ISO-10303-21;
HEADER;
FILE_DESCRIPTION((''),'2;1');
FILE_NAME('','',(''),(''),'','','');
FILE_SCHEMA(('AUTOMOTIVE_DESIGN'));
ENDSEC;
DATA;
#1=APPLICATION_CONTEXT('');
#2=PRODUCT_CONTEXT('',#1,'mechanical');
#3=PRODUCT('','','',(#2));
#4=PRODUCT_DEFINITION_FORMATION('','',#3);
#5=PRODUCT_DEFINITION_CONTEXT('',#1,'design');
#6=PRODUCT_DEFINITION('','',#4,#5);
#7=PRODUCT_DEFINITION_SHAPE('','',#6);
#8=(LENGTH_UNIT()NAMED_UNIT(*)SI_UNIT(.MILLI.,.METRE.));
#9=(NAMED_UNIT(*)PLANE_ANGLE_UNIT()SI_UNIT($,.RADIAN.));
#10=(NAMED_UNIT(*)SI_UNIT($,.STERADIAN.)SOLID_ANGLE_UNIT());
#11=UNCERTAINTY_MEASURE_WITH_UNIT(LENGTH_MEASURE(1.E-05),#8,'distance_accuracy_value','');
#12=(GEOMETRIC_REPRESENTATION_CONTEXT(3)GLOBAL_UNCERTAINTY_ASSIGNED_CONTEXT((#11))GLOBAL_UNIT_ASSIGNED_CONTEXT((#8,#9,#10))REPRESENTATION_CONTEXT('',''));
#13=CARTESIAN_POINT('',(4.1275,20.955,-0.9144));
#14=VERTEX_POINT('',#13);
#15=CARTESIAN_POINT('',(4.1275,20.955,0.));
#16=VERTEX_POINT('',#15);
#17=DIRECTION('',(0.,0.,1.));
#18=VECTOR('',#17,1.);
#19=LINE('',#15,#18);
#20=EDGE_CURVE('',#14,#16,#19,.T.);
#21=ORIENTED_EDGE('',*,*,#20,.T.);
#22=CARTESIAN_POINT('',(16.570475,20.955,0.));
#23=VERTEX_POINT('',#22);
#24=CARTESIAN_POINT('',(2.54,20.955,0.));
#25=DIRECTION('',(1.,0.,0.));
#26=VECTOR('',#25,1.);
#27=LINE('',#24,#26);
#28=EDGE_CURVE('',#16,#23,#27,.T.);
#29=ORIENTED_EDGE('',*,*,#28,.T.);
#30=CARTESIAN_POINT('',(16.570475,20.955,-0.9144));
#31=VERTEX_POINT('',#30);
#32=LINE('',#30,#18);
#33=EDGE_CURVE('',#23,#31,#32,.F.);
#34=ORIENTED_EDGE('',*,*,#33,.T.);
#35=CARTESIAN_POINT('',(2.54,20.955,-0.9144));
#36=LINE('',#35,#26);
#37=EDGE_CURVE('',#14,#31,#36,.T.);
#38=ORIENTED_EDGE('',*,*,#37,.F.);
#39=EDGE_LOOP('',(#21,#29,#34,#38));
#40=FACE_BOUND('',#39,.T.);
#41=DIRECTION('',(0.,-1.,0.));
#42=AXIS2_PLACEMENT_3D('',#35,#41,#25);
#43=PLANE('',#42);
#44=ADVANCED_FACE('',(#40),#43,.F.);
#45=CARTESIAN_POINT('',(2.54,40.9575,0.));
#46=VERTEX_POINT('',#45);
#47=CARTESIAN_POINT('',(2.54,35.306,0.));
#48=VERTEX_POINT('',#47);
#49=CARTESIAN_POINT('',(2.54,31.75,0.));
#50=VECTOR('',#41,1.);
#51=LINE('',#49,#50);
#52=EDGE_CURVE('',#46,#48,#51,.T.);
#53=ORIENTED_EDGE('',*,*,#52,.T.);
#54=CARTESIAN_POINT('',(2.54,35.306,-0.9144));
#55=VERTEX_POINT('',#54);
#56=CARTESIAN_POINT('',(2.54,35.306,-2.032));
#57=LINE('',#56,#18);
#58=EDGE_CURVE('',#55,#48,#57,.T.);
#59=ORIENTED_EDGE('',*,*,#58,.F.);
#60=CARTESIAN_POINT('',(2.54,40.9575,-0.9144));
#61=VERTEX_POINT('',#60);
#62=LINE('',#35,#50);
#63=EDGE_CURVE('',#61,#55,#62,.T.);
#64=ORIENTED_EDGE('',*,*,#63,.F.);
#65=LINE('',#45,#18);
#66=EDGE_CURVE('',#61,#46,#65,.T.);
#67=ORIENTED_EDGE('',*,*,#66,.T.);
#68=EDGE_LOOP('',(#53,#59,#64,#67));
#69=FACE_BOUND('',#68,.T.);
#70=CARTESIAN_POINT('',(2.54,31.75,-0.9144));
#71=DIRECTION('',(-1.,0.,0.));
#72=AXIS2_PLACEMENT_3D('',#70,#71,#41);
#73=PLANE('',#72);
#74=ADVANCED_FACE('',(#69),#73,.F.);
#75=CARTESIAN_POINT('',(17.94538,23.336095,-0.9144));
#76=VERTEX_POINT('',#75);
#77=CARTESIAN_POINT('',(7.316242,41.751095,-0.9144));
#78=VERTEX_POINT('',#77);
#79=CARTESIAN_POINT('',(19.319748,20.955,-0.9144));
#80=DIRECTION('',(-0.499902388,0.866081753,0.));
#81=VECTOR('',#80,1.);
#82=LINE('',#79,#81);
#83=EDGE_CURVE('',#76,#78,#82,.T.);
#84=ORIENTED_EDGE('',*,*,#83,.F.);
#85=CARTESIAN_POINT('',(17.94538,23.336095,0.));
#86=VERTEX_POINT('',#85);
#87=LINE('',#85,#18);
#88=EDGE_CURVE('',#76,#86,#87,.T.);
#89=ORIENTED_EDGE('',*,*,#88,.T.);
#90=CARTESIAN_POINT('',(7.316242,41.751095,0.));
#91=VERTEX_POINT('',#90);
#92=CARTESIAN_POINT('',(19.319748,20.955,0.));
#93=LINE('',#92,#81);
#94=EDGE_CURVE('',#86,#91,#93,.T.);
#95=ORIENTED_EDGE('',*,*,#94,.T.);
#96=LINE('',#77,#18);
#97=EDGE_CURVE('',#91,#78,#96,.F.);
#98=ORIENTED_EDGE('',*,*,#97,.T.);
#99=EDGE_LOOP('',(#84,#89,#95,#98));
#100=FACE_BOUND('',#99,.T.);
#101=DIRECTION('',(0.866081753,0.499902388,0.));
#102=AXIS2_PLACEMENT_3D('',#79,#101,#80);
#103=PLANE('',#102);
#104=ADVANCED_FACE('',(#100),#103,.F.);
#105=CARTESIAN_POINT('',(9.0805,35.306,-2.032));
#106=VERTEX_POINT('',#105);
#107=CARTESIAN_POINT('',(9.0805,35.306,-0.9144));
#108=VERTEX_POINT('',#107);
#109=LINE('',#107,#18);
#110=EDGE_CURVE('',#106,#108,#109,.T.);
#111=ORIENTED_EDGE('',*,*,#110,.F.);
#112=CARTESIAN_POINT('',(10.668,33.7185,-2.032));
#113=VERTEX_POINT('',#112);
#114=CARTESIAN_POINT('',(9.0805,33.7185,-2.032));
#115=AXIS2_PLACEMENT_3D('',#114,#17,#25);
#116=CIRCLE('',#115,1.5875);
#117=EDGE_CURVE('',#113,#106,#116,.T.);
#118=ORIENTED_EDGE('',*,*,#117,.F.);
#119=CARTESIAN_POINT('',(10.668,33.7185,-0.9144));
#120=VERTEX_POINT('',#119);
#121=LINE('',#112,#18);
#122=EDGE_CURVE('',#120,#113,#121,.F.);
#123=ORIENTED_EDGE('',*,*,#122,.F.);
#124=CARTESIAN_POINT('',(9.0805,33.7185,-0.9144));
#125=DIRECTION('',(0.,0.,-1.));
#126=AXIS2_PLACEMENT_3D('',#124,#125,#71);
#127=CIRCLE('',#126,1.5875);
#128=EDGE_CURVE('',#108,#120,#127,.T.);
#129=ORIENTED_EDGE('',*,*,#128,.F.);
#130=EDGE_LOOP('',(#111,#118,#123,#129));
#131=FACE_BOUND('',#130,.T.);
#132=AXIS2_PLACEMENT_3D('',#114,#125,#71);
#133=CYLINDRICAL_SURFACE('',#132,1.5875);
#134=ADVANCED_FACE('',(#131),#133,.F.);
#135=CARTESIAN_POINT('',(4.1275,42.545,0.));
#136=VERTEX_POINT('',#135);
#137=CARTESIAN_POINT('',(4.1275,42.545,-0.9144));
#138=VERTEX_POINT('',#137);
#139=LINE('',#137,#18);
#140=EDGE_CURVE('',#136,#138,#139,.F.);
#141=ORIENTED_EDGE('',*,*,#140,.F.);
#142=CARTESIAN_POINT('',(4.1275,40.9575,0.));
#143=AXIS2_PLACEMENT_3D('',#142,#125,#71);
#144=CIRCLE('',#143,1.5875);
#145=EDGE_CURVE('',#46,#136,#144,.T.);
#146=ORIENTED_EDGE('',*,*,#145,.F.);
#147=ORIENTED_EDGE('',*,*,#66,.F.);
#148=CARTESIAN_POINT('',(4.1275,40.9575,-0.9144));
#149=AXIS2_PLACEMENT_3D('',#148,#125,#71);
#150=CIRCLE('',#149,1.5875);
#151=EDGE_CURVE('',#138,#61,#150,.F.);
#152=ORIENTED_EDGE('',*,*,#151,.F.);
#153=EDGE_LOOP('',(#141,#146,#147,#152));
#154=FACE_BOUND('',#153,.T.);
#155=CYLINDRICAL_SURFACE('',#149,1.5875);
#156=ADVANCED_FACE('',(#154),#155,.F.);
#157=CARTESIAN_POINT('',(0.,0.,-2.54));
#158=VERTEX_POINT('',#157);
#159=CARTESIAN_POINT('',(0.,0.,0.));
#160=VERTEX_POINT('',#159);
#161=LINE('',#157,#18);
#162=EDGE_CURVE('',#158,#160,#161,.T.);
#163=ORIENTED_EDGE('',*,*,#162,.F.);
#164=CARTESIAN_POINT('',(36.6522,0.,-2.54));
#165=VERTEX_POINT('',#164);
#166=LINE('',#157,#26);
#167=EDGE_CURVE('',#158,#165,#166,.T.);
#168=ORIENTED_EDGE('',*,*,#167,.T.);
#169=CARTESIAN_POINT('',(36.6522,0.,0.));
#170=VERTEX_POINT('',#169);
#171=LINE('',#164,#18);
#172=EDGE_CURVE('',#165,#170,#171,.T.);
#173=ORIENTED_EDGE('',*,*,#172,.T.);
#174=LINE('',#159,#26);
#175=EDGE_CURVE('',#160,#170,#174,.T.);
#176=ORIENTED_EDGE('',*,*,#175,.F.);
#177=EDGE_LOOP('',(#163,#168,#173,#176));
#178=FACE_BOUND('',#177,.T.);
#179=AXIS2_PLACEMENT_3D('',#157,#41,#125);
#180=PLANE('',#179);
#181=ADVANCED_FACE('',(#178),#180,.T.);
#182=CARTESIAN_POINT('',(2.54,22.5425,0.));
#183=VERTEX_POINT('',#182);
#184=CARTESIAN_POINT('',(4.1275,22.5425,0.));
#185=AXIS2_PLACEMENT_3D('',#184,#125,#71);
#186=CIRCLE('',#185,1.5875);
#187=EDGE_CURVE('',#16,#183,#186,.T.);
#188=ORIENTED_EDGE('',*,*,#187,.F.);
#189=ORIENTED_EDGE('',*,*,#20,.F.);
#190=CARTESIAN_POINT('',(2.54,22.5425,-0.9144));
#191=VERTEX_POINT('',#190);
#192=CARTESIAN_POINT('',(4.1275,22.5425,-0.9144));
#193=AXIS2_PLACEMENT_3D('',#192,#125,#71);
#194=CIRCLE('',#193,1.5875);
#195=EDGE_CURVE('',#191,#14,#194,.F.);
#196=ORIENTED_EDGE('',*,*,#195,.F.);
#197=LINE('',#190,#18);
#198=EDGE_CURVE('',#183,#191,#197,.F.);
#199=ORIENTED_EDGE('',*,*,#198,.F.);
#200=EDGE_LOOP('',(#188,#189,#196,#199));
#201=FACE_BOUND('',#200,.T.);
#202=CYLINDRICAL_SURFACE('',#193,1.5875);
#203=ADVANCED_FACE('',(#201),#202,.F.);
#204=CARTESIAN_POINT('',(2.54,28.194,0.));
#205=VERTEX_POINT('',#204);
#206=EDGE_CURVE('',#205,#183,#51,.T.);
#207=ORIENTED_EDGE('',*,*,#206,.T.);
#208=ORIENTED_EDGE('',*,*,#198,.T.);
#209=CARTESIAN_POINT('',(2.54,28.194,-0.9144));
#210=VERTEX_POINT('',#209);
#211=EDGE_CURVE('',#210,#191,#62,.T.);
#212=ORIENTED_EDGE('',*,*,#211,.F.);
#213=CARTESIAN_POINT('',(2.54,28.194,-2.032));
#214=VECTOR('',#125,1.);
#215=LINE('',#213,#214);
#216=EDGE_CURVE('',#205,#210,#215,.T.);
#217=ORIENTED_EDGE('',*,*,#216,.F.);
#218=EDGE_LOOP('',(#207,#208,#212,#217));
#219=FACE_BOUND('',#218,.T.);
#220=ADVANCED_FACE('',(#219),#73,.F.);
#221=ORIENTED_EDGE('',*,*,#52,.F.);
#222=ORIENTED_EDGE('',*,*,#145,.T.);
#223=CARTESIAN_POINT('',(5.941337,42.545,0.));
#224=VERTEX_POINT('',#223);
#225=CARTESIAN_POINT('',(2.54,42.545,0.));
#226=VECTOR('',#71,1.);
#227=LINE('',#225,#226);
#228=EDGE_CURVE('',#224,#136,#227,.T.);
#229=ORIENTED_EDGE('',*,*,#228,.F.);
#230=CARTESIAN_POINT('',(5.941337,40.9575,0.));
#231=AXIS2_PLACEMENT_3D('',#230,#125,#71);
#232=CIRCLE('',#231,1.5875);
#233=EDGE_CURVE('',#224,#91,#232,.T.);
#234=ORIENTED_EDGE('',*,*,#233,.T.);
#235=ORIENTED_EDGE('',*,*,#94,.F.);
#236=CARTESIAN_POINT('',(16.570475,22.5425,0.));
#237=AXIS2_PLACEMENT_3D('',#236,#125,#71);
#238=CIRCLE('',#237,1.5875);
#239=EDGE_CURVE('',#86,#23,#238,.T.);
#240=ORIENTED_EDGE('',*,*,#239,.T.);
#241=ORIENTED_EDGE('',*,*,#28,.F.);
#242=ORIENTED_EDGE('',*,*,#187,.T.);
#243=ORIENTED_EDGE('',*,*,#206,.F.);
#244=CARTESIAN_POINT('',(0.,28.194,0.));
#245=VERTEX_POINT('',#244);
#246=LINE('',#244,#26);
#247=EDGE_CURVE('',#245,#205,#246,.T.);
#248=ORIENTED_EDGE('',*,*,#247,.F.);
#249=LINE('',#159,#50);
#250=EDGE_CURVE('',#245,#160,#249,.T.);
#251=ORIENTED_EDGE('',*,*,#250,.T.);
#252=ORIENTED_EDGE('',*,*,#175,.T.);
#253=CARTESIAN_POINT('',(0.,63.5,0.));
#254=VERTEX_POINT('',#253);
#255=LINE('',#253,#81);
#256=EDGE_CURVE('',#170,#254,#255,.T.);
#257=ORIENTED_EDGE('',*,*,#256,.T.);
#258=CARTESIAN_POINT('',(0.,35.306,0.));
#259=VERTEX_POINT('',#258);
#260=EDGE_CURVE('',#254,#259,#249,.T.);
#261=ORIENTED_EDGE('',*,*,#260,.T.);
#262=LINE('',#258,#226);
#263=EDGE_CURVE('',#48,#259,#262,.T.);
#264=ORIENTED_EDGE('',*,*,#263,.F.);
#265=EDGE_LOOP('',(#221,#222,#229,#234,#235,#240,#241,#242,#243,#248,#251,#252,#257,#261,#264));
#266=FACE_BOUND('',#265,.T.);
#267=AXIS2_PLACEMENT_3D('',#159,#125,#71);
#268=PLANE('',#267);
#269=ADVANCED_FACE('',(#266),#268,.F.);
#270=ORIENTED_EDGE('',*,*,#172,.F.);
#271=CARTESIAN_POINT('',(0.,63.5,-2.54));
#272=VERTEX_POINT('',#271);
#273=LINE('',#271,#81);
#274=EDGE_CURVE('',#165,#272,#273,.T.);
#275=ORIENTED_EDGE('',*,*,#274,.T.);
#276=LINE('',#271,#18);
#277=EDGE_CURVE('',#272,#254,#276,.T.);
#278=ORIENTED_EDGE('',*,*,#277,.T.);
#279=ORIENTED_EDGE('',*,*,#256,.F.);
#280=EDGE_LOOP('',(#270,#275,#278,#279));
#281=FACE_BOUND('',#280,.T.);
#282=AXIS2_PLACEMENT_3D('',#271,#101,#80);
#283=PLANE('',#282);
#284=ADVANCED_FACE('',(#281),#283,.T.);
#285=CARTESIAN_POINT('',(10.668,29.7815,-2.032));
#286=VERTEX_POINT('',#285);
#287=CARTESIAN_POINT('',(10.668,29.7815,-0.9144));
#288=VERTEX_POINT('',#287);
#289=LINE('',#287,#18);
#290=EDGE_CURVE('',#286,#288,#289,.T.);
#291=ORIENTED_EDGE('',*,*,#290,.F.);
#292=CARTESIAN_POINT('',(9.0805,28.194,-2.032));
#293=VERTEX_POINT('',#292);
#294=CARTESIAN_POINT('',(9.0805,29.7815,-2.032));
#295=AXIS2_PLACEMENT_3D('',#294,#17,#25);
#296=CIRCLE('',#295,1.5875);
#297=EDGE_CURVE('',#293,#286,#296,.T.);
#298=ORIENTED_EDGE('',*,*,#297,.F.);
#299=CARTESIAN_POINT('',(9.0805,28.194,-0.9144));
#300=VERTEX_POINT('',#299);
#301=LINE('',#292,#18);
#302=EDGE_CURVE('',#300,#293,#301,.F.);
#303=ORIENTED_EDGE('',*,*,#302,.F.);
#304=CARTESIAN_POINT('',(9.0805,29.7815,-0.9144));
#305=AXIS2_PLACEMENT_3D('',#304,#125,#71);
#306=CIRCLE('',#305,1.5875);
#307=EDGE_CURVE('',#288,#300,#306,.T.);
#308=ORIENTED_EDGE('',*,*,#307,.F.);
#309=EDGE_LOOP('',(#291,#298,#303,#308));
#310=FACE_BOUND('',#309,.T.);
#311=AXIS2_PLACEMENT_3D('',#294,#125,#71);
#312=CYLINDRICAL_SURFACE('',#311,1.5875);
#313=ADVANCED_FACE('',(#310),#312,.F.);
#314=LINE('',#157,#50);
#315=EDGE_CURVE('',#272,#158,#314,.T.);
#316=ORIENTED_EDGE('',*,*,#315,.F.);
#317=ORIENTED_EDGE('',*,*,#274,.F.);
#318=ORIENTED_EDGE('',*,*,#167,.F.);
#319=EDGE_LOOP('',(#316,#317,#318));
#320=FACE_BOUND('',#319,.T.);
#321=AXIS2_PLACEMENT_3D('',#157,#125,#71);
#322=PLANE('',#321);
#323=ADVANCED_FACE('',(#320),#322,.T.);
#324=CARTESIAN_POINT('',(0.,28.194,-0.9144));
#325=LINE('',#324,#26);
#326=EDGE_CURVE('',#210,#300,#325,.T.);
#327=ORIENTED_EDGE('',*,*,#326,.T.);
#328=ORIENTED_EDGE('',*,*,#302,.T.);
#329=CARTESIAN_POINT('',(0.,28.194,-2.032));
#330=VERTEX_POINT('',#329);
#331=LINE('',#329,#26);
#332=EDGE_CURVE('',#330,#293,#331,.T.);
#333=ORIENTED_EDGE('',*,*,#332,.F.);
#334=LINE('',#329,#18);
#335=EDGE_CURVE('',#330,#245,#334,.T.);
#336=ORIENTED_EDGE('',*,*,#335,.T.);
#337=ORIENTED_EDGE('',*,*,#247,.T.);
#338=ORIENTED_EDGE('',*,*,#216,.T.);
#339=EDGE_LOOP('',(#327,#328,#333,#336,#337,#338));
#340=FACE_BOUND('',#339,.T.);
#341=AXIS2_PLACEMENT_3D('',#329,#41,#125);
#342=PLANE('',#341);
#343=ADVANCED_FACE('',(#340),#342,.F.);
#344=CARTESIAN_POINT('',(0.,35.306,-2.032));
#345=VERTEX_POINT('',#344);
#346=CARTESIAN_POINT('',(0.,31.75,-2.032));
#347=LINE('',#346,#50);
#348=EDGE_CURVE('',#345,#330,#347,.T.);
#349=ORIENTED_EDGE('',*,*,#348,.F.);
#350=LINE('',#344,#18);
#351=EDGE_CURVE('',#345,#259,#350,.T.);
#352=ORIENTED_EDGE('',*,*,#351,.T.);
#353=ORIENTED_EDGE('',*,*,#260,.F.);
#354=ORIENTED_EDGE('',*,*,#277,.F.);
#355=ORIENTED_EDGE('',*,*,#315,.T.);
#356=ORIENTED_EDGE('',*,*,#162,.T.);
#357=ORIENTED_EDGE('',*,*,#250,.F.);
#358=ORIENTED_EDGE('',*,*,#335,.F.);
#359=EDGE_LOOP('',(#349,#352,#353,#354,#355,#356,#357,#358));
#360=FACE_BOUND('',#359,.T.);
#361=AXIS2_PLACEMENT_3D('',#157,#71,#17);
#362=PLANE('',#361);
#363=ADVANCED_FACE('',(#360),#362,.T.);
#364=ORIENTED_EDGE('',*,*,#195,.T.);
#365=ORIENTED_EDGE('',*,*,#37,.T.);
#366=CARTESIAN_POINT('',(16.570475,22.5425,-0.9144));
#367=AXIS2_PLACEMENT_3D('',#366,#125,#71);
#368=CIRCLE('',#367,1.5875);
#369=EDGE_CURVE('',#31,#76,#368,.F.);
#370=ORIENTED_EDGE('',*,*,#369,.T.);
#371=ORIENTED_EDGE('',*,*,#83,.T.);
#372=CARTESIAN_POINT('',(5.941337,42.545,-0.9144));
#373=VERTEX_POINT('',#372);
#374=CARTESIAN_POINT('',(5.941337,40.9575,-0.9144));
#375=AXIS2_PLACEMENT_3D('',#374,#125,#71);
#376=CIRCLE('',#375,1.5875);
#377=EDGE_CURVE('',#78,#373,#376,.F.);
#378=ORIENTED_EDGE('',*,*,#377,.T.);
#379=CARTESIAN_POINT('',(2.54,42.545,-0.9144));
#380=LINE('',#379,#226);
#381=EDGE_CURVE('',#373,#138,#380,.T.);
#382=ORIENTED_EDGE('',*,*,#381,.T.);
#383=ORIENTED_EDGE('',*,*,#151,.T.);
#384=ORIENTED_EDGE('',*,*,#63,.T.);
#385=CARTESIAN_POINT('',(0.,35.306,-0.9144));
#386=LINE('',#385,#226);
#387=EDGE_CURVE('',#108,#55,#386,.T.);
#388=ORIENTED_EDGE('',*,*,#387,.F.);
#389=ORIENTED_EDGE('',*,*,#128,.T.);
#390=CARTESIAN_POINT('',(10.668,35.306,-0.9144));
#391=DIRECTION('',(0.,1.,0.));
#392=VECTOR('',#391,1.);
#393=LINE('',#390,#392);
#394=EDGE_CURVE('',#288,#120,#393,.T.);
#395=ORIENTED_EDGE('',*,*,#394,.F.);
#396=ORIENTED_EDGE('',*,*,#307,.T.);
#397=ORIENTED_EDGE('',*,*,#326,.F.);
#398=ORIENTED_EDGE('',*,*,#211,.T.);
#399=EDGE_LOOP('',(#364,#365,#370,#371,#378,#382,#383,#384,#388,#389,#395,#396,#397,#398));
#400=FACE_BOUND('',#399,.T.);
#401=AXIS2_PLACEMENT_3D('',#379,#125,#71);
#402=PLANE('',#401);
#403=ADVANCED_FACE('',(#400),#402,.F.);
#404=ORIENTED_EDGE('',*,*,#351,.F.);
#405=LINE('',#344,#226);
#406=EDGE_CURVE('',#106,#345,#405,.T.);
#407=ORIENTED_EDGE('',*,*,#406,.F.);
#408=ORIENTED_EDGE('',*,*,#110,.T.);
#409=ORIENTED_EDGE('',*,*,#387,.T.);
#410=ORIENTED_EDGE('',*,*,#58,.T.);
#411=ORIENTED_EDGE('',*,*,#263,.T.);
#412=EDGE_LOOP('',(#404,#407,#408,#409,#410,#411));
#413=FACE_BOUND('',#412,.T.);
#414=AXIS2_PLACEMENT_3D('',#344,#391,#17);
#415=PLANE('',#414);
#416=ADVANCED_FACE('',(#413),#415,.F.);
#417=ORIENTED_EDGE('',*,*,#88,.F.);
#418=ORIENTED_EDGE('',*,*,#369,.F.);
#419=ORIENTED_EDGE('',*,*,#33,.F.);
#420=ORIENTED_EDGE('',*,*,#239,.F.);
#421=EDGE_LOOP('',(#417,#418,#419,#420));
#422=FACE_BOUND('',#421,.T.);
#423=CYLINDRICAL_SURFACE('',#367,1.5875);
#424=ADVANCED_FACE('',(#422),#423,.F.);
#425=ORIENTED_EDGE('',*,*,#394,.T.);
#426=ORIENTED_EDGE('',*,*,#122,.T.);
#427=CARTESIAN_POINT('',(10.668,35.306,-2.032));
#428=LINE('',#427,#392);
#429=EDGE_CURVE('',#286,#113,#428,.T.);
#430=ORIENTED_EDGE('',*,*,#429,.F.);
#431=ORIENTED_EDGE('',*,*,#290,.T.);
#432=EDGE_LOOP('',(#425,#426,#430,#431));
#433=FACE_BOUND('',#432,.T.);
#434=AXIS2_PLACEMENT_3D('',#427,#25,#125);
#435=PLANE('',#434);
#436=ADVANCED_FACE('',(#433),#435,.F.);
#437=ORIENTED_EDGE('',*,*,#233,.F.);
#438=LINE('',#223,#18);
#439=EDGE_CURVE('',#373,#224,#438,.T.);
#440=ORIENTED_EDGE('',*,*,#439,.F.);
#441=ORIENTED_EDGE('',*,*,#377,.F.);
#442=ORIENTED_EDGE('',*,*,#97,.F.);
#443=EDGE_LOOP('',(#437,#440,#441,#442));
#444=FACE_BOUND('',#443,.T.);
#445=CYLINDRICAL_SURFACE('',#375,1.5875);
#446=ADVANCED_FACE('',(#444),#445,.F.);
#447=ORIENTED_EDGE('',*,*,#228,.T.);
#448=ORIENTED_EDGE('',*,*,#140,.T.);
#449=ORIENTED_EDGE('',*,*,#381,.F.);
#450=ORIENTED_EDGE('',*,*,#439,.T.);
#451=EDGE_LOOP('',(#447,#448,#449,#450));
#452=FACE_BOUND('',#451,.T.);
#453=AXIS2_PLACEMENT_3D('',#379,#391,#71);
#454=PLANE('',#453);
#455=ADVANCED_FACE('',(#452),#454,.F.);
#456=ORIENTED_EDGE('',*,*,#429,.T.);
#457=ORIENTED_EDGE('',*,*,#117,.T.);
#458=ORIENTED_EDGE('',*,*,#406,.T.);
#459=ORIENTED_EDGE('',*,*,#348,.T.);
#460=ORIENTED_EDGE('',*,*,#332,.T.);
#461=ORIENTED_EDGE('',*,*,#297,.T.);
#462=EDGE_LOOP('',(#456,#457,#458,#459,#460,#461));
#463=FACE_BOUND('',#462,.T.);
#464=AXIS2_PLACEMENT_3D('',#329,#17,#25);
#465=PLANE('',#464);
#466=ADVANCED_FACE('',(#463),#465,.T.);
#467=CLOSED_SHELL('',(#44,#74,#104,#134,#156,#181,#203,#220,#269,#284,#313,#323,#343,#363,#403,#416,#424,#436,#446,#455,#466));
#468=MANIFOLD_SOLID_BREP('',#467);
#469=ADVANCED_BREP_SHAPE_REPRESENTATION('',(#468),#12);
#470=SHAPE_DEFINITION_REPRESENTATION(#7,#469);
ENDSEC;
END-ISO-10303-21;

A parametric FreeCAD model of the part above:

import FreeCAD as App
import Part
import Sketcher
Q = App.Units.Quantity


def edges_at(feature, points):
    """Names of the edges that pass closest to the given points."""
    edges = feature.Shape.Edges
    near = lambda p: min(range(len(edges)), key=lambda i: edges[i].distToShape(Part.Vertex(*p))[0])
    return sorted({f"Edge{near(p) + 1}" for p in points})


def add_polygon(sketch, points):
    """Adds a closed chain of lines whose ends are joined by coincident constraints."""
    first, n = sketch.GeometryCount, len(points)
    for a, b in zip(points, points[1:] + points[:1]):
        sketch.addGeometry(Part.LineSegment(App.Vector(*a, 0), App.Vector(*b, 0)), False)
    for i in range(n):
        sketch.addConstraint(Sketcher.Constraint("Coincident", first + i, 2, first + (i + 1) % n, 1))

doc = App.newDocument("Part")
body = doc.addObject("PartDesign::Body", "Body")

# Sketch on XY plane
sketch1 = body.newObject("Sketcher::SketchObject", "Sketch")
sketch1.AttachmentSupport = (doc.getObject("XY_Plane"), [""])
sketch1.MapMode = "FlatFace"
add_polygon(sketch1, [(37, 0), (0, 64), (0, 0)])  # lines 0-2
sketch1.addConstraint([
    Sketcher.Constraint("Vertical", 1),
    Sketcher.Constraint("Horizontal", 2),
    Sketcher.Constraint("Coincident", 1, 2, -1, 1),
    Sketcher.Constraint("DistanceY", 1, 2, 1, 1, Q("2.5 in")),
    Sketcher.Constraint("DistanceX", 2, 1, 2, 2, Q("1.443 in")),
])
pad1 = body.newObject("PartDesign::Pad", "Pad")
pad1.Profile = sketch1
pad1.Length = Q("0.1 in")
pad1.Reversed = True

# Sketch on XY plane
sketch2 = body.newObject("Sketcher::SketchObject", "Sketch001")
sketch2.AttachmentSupport = (doc.getObject("XY_Plane"), [""])
sketch2.MapMode = "FlatFace"
add_polygon(sketch2, [(0, 35), (0, 28), (11, 28), (11, 35)])  # lines 0-3
sketch2.addConstraint([
    Sketcher.Constraint("Vertical", 0),
    Sketcher.Constraint("Horizontal", 1),
    Sketcher.Constraint("Vertical", 2),
    Sketcher.Constraint("Horizontal", 3),
    Sketcher.Constraint("PointOnObject", 0, 2, -2),
    Sketcher.Constraint("DistanceX", 1, 1, 1, 2, Q("0.42 in")),
    Sketcher.Constraint("DistanceY", 0, 2, 0, 1, Q("0.28 in")),
    Sketcher.Constraint("DistanceY", -1, 1, 0, 2, Q("1.11 in")),
])
pocket1 = body.newObject("PartDesign::Pocket", "Pocket")
pocket1.Profile = sketch2
pocket1.Length = Q("0.08 in")

# Sketch on XY plane
sketch3 = body.newObject("Sketcher::SketchObject", "Sketch002")
sketch3.AttachmentSupport = (doc.getObject("XY_Plane"), [""])
sketch3.MapMode = "FlatFace"
add_polygon(sketch3, [(2.5, 42.5), (2.5, 21), (19.3, 21), (6.9, 42.5)])  # lines 0-3
sketch3.addConstraint([
    Sketcher.Constraint("Vertical", 0),
    Sketcher.Constraint("Horizontal", 1),
    Sketcher.Constraint("Horizontal", 3),
    Sketcher.Constraint("DistanceX", 3, 2, 3, 1, Q("0.17 in")),
    Sketcher.Constraint("DistanceY", 0, 2, 0, 1, Q("0.85 in")),
    Sketcher.Constraint("DistanceX", -1, 1, 0, 2, Q("0.1 in")),
    Sketcher.Constraint("DistanceY", -1, 1, 0, 2, Q("0.825 in")),
    Sketcher.Constraint("DistanceX", 1, 1, 1, 2, Q("16.779748 mm")),
])
pocket2 = body.newObject("PartDesign::Pocket", "Pocket001")
pocket2.Profile = sketch3
pocket2.Length = Q("0.036 in")
doc.recompute()

fillet = body.newObject("PartDesign::Fillet", "Fillet")
fillet.Base = (pocket2, edges_at(pocket2, [
    (10.668, 35.306, -1.473),
    (10.668, 28.194, -1.473),
    (2.54, 20.955, -0.457),
    (2.54, 42.545, -0.457),
    (6.858, 42.545, -0.457),
    (19.32, 20.955, -0.457),
]))
fillet.Radius = Q("0.0625 in")

doc.recompute()
